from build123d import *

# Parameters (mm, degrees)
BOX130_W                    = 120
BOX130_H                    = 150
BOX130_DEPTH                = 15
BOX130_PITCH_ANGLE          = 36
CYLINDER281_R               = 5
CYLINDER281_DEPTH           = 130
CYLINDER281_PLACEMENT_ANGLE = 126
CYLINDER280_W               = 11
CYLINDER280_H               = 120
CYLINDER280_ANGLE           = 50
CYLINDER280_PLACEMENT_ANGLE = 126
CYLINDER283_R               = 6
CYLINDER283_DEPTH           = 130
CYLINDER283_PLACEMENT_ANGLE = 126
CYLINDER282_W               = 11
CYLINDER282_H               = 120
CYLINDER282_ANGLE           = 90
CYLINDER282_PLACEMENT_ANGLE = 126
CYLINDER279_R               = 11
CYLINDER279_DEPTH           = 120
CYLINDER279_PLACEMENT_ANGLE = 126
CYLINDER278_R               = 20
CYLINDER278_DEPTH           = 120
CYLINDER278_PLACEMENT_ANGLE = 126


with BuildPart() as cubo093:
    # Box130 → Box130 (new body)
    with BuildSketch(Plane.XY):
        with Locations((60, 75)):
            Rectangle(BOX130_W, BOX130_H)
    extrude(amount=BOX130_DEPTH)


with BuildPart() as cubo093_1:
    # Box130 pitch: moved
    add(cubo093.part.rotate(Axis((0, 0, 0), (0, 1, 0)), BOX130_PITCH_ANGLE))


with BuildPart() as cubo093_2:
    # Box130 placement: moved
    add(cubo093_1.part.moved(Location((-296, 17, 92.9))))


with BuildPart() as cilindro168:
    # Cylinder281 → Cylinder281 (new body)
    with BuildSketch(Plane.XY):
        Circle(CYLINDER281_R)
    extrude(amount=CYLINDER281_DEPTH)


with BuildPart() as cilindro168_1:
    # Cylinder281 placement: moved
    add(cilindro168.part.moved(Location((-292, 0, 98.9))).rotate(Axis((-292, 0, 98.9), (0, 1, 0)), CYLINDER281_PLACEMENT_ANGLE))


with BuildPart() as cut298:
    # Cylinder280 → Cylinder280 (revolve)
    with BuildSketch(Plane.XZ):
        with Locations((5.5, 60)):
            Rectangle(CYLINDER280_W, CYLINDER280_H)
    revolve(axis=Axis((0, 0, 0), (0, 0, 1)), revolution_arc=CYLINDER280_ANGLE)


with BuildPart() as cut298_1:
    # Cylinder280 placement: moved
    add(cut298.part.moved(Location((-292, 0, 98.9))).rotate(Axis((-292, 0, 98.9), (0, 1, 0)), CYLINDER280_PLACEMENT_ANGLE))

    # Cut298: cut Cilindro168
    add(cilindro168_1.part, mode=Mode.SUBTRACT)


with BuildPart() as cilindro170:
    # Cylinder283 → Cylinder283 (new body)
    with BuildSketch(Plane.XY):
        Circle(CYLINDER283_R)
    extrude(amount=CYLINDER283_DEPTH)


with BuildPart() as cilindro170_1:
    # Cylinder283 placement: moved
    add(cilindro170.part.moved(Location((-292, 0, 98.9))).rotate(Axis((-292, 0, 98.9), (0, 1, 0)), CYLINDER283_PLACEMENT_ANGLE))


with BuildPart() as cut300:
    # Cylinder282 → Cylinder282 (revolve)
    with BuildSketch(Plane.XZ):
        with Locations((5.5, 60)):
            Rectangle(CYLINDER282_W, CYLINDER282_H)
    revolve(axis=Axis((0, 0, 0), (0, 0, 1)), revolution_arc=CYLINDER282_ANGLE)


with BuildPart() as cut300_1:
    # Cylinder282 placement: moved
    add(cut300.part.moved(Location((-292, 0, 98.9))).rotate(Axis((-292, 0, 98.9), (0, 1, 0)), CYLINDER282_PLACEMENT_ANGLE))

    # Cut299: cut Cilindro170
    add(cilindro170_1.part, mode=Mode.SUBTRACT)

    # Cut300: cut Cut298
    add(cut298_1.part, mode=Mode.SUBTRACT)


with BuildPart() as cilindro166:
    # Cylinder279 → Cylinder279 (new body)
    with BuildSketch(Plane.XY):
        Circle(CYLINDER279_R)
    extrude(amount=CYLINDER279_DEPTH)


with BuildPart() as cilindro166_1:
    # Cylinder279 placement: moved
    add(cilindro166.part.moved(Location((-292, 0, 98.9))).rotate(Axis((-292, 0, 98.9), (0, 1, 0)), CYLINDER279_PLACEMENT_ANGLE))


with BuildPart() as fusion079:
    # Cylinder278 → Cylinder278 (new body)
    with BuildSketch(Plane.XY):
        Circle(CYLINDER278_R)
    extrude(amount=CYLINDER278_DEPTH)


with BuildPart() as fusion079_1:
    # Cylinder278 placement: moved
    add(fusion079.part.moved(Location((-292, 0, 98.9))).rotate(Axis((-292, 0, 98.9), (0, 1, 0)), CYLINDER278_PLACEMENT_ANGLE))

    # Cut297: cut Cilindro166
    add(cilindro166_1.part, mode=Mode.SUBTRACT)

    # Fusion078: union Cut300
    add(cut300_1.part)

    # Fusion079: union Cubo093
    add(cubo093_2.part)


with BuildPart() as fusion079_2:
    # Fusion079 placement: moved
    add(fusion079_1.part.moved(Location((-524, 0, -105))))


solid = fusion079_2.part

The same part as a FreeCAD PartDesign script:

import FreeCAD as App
import Part
import Sketcher
Q = App.Units.Quantity


def add_polygon(sketch, points):
    """Adds a closed chain of lines whose ends are joined by coincident constraints."""
    first, n = sketch.GeometryCount, len(points)
    for a, b in zip(points, points[1:] + points[:1]):
        sketch.addGeometry(Part.LineSegment(App.Vector(*a, 0), App.Vector(*b, 0)), False)
    for i in range(n):
        sketch.addConstraint(Sketcher.Constraint("Coincident", first + i, 2, first + (i + 1) % n, 1))

doc = App.newDocument("Part")
body = doc.addObject("PartDesign::Body", "Body")

sketch1 = body.newObject("Sketcher::SketchObject", "Sketch")
sketch1.AttachmentSupport = (doc.getObject("XY_Plane"), [""])
sketch1.MapMode = "FlatFace"
add_polygon(sketch1, [(0, 150), (0, 0), (120, 0), (120, 150)])
sketch1.addConstraint([
    Sketcher.Constraint("Vertical", 0),
    Sketcher.Constraint("Horizontal", 1),
    Sketcher.Constraint("Vertical", 2),
    Sketcher.Constraint("Horizontal", 3),
    Sketcher.Constraint("Coincident", 0, 2, -1, 1),
    Sketcher.Constraint("DistanceX", 1, 1, 1, 2, Q("120 mm")),
    Sketcher.Constraint("DistanceY", 0, 2, 0, 1, Q("150 mm")),
])
pad1 = body.newObject("PartDesign::Pad", "Pad")
pad1.Profile = sketch1
pad1.Length = 15
body2 = doc.addObject("PartDesign::Body", "Body001")
doc.recompute()

body.Placement = App.Placement(App.Vector(0, 0, 0), App.Rotation(App.Vector(0, 1, 0), 36))
boolean = body2.newObject("PartDesign::Boolean", "Boolean")
boolean.Type = "Fuse"
boolean.addObjects([body])
body3 = doc.addObject("PartDesign::Body", "Body002")
doc.recompute()

body2.Placement = App.Placement(App.Vector(-296, 17, 92.9), App.Rotation(App.Vector(0, 0, 1), 0))
boolean2 = body3.newObject("PartDesign::Boolean", "Boolean001")
boolean2.Type = "Fuse"
boolean2.addObjects([body2])
body4 = doc.addObject("PartDesign::Body", "Body003")

sketch2 = body4.newObject("Sketcher::SketchObject", "Sketch001")
sketch2.AttachmentSupport = (doc.getObject("XY_Plane003"), [""])
sketch2.MapMode = "FlatFace"
sketch2.addGeometry(Part.Circle(App.Vector(0, 0, 0), App.Vector(0, 0, 1), 5), False)
sketch2.addConstraint([
    Sketcher.Constraint("Coincident", 0, 3, -1, 1),
    Sketcher.Constraint("Diameter", 0, Q("10 mm")),
])
pad2 = body4.newObject("PartDesign::Pad", "Pad001")
pad2.Profile = sketch2
pad2.Length = 130
body5 = doc.addObject("PartDesign::Body", "Body004")
doc.recompute()

body4.Placement = App.Placement(App.Vector(-292, 0, 98.9), App.Rotation(App.Vector(0, 1, 0), 126))
boolean3 = body5.newObject("PartDesign::Boolean", "Boolean002")
boolean3.Type = "Fuse"
boolean3.addObjects([body4])
body6 = doc.addObject("PartDesign::Body", "Body005")

sketch3 = body6.newObject("Sketcher::SketchObject", "Sketch002")
sketch3.AttachmentSupport = (doc.getObject("XZ_Plane005"), [""])
sketch3.MapMode = "FlatFace"
add_polygon(sketch3, [(0, 120), (0, 0), (11, 0), (11, 120)])
sketch3.addConstraint([
    Sketcher.Constraint("Vertical", 0),
    Sketcher.Constraint("Horizontal", 1),
    Sketcher.Constraint("Vertical", 2),
    Sketcher.Constraint("Horizontal", 3),
    Sketcher.Constraint("Coincident", 0, 2, -1, 1),
    Sketcher.Constraint("DistanceX", 1, 1, 1, 2, Q("11 mm")),
    Sketcher.Constraint("DistanceY", 0, 2, 0, 1, Q("120 mm")),
])
revolution = body6.newObject("PartDesign::Revolution", "Revolution")
revolution.Profile = sketch3
revolution.ReferenceAxis = (sketch3, ["V_Axis"])
revolution.Angle = 50
body7 = doc.addObject("PartDesign::Body", "Body006")
doc.recompute()

body6.Placement = App.Placement(App.Vector(-292, 0, 98.9), App.Rotation(App.Vector(0, 1, 0), 126))
boolean4 = body7.newObject("PartDesign::Boolean", "Boolean003")
boolean4.Type = "Fuse"
boolean4.addObjects([body6])
doc.recompute()

boolean5 = body7.newObject("PartDesign::Boolean", "Boolean004")
boolean5.Type = "Cut"
boolean5.addObjects([body5])
body8 = doc.addObject("PartDesign::Body", "Body007")

sketch4 = body8.newObject("Sketcher::SketchObject", "Sketch003")
sketch4.AttachmentSupport = (doc.getObject("XY_Plane007"), [""])
sketch4.MapMode = "FlatFace"
sketch4.addGeometry(Part.Circle(App.Vector(0, 0, 0), App.Vector(0, 0, 1), 6), False)
sketch4.addConstraint([
    Sketcher.Constraint("Coincident", 0, 3, -1, 1),
    Sketcher.Constraint("Diameter", 0, Q("12 mm")),
])
pad3 = body8.newObject("PartDesign::Pad", "Pad002")
pad3.Profile = sketch4
pad3.Length = 130
body9 = doc.addObject("PartDesign::Body", "Body008")
doc.recompute()

body8.Placement = App.Placement(App.Vector(-292, 0, 98.9), App.Rotation(App.Vector(0, 1, 0), 126))
boolean6 = body9.newObject("PartDesign::Boolean", "Boolean005")
boolean6.Type = "Fuse"
boolean6.addObjects([body8])
body10 = doc.addObject("PartDesign::Body", "Body009")

sketch5 = body10.newObject("Sketcher::SketchObject", "Sketch004")
sketch5.AttachmentSupport = (doc.getObject("XZ_Plane009"), [""])
sketch5.MapMode = "FlatFace"
add_polygon(sketch5, [(0, 120), (0, 0), (11, 0), (11, 120)])
sketch5.addConstraint([
    Sketcher.Constraint("Vertical", 0),
    Sketcher.Constraint("Horizontal", 1),
    Sketcher.Constraint("Vertical", 2),
    Sketcher.Constraint("Horizontal", 3),
    Sketcher.Constraint("Coincident", 0, 2, -1, 1),
    Sketcher.Constraint("DistanceX", 1, 1, 1, 2, Q("11 mm")),
    Sketcher.Constraint("DistanceY", 0, 2, 0, 1, Q("120 mm")),
])
revolution2 = body10.newObject("PartDesign::Revolution", "Revolution001")
revolution2.Profile = sketch5
revolution2.ReferenceAxis = (sketch5, ["V_Axis"])
revolution2.Angle = 90
body11 = doc.addObject("PartDesign::Body", "Body010")
doc.recompute()

body10.Placement = App.Placement(App.Vector(-292, 0, 98.9), App.Rotation(App.Vector(0, 1, 0), 126))
boolean7 = body11.newObject("PartDesign::Boolean", "Boolean006")
boolean7.Type = "Fuse"
boolean7.addObjects([body10])
doc.recompute()

boolean8 = body11.newObject("PartDesign::Boolean", "Boolean007")
boolean8.Type = "Cut"
boolean8.addObjects([body9])
doc.recompute()

boolean9 = body11.newObject("PartDesign::Boolean", "Boolean008")
boolean9.Type = "Cut"
boolean9.addObjects([body7])
body12 = doc.addObject("PartDesign::Body", "Body011")

sketch6 = body12.newObject("Sketcher::SketchObject", "Sketch005")
sketch6.AttachmentSupport = (doc.getObject("XY_Plane011"), [""])
sketch6.MapMode = "FlatFace"
sketch6.addGeometry(Part.Circle(App.Vector(0, 0, 0), App.Vector(0, 0, 1), 11), False)
sketch6.addConstraint([
    Sketcher.Constraint("Coincident", 0, 3, -1, 1),
    Sketcher.Constraint("Diameter", 0, Q("22 mm")),
])
pad4 = body12.newObject("PartDesign::Pad", "Pad003")
pad4.Profile = sketch6
pad4.Length = 120
body13 = doc.addObject("PartDesign::Body", "Body012")
doc.recompute()

body12.Placement = App.Placement(App.Vector(-292, 0, 98.9), App.Rotation(App.Vector(0, 1, 0), 126))
boolean10 = body13.newObject("PartDesign::Boolean", "Boolean009")
boolean10.Type = "Fuse"
boolean10.addObjects([body12])
body14 = doc.addObject("PartDesign::Body", "Body013")

sketch7 = body14.newObject("Sketcher::SketchObject", "Sketch006")
sketch7.AttachmentSupport = (doc.getObject("XY_Plane013"), [""])
sketch7.MapMode = "FlatFace"
sketch7.addGeometry(Part.Circle(App.Vector(0, 0, 0), App.Vector(0, 0, 1), 20), False)
sketch7.addConstraint([
    Sketcher.Constraint("Coincident", 0, 3, -1, 1),
    Sketcher.Constraint("Diameter", 0, Q("40 mm")),
])
pad5 = body14.newObject("PartDesign::Pad", "Pad004")
pad5.Profile = sketch7
pad5.Length = 120
body15 = doc.addObject("PartDesign::Body", "Body014")
doc.recompute()

body14.Placement = App.Placement(App.Vector(-292, 0, 98.9), App.Rotation(App.Vector(0, 1, 0), 126))
boolean11 = body15.newObject("PartDesign::Boolean", "Boolean010")
boolean11.Type = "Fuse"
boolean11.addObjects([body14])
doc.recompute()

boolean12 = body15.newObject("PartDesign::Boolean", "Boolean011")
boolean12.Type = "Cut"
boolean12.addObjects([body13])
doc.recompute()

boolean13 = body15.newObject("PartDesign::Boolean", "Boolean012")
boolean13.Type = "Fuse"
boolean13.addObjects([body11])
doc.recompute()

boolean14 = body15.newObject("PartDesign::Boolean", "Boolean013")
boolean14.Type = "Fuse"
boolean14.addObjects([body3])
body16 = doc.addObject("PartDesign::Body", "Body015")
doc.recompute()

body15.Placement = App.Placement(App.Vector(-524, 0, -105), App.Rotation(App.Vector(0, 0, 1), 0))
boolean15 = body16.newObject("PartDesign::Boolean", "Boolean014")
boolean15.Type = "Fuse"
boolean15.addObjects([body15])

doc.recompute()
